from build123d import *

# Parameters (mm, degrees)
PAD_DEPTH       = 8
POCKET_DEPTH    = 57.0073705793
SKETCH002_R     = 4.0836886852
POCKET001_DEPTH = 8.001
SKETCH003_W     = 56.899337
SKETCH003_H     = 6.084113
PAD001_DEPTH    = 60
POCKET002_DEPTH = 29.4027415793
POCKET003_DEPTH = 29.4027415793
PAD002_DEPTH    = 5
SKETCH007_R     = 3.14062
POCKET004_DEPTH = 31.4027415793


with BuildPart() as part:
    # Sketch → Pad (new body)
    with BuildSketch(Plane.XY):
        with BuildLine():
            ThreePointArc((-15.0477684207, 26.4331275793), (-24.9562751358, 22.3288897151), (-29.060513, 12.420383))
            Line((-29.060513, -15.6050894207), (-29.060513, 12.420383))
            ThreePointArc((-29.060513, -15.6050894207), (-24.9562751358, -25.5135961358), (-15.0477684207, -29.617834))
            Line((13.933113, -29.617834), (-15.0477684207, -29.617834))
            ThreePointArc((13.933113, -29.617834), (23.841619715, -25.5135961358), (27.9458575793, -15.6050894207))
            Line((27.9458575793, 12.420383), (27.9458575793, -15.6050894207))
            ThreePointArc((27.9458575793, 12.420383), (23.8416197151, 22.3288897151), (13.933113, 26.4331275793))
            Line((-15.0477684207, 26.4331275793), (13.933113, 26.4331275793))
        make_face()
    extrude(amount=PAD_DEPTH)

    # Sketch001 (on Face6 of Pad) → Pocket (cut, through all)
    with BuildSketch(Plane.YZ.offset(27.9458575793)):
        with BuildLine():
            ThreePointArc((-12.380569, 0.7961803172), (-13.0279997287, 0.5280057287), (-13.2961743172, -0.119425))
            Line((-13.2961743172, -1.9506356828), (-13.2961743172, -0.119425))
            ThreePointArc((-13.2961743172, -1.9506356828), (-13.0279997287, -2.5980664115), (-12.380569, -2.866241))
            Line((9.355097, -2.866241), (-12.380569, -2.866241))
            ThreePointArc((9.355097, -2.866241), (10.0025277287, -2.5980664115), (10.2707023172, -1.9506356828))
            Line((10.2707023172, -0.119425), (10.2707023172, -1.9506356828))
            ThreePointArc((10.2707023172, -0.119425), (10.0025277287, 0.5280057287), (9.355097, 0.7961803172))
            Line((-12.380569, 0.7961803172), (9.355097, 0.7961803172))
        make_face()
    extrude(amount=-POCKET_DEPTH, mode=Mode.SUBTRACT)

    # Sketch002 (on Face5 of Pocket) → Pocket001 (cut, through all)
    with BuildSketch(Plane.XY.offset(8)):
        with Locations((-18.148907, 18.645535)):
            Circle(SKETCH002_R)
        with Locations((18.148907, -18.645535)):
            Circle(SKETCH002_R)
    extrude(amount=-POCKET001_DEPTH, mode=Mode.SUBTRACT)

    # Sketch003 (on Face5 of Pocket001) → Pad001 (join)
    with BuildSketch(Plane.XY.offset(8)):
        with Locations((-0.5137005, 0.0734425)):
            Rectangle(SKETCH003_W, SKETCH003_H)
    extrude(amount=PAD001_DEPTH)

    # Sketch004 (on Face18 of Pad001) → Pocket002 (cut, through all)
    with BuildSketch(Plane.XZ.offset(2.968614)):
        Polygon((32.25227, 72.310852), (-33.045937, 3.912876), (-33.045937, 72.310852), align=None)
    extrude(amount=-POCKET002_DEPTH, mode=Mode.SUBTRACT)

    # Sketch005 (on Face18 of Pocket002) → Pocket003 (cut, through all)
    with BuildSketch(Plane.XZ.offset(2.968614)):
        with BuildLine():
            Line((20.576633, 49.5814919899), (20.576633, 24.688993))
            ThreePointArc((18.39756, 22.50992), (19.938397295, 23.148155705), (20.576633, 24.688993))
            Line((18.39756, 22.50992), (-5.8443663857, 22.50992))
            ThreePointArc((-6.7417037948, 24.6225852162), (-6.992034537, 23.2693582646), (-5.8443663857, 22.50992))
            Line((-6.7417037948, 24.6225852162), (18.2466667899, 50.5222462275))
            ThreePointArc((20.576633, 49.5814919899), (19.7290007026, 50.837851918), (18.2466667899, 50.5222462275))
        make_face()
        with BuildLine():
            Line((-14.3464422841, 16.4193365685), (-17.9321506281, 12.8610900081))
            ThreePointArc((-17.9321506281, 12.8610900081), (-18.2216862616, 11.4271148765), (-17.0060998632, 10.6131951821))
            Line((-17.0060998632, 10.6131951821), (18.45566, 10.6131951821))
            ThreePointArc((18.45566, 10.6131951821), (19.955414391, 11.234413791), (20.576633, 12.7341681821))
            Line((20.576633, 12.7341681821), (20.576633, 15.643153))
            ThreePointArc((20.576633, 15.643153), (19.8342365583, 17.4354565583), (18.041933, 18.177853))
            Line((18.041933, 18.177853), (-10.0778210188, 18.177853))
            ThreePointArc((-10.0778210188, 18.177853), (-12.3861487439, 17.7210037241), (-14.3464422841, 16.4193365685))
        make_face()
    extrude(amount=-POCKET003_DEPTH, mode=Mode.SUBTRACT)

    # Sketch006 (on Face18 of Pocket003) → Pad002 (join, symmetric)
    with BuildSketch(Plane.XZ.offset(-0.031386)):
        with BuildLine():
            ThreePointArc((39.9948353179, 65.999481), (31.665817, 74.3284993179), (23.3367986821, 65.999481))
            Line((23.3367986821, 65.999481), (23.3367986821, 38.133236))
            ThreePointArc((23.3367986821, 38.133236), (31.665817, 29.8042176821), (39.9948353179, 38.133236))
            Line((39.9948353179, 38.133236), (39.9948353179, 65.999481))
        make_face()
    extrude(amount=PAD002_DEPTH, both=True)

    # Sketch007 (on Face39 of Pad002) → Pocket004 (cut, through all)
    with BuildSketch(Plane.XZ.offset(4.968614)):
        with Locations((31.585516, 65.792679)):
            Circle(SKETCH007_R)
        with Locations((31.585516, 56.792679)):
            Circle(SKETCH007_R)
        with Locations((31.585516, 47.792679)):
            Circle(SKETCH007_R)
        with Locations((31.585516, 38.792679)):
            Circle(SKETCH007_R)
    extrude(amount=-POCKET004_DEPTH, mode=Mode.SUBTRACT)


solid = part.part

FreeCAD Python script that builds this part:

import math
import FreeCAD as App
import Part
import Sketcher

V = App.Vector

doc = App.newDocument("Part")
params = doc.addObject("Spreadsheet::Sheet", "Params")
for row, (alias, value) in enumerate([
    ("pad1_length", "8 mm"),
    ("pad2_length", "60 mm"),
    ("pad3_length", "10 mm"),
], start=1):
    params.set(f"A{row}", alias)
    params.set(f"B{row}", "=" + value)
    params.setAlias(f"B{row}", alias)

body = doc.addObject("PartDesign::Body", "Body")

# Sketch on XY plane
sketch1 = doc.addObject("Sketcher::SketchObject", "Sketch")
body.addObject(sketch1)
sketch1.AttachmentSupport = (doc.XY_Plane, [""])
sketch1.MapMode = "FlatFace"
sketch1.addGeometry(Part.ArcOfCircle(Part.Circle(V(-15.047768, 12.420383, 0), V(0, 0, 1), 14.012745), math.radians(90), math.radians(180)), False)
sketch1.addGeometry(Part.LineSegment(V(-29.060513, 12.420383, 0), V(-29.060513, -15.605089, 0)), False)
sketch1.addGeometry(Part.ArcOfCircle(Part.Circle(V(-15.047768, -15.605089, 0), V(0, 0, 1), 14.012745), math.radians(180), math.radians(270)), False)
sketch1.addGeometry(Part.LineSegment(V(-15.047768, -29.617834, 0), V(13.933113, -29.617834, 0)), False)
sketch1.addGeometry(Part.ArcOfCircle(Part.Circle(V(13.933113, -15.605089, 0), V(0, 0, 1), 14.012745), math.radians(-90), math.radians(0)), False)
sketch1.addGeometry(Part.LineSegment(V(27.945858, -15.605089, 0), V(27.945858, 12.420383, 0)), False)
sketch1.addGeometry(Part.ArcOfCircle(Part.Circle(V(13.933113, 12.420383, 0), V(0, 0, 1), 14.012745), math.radians(0), math.radians(90)), False)
sketch1.addGeometry(Part.LineSegment(V(13.933113, 26.433128, 0), V(-15.047768, 26.433128, 0)), False)
sketch1.addConstraint(Sketcher.Constraint("Tangent", 0, 2, 1, 1))
sketch1.addConstraint(Sketcher.Constraint("Tangent", 1, 2, 2, 1))
sketch1.addConstraint(Sketcher.Constraint("Tangent", 2, 2, 3, 1))
sketch1.addConstraint(Sketcher.Constraint("Tangent", 3, 2, 4, 1))
sketch1.addConstraint(Sketcher.Constraint("Tangent", 4, 2, 5, 1))
sketch1.addConstraint(Sketcher.Constraint("Tangent", 5, 2, 6, 1))
sketch1.addConstraint(Sketcher.Constraint("Tangent", 6, 2, 7, 1))
sketch1.addConstraint(Sketcher.Constraint("Tangent", 7, 2, 0, 1))
sketch1.addConstraint(Sketcher.Constraint("Vertical", 1))
sketch1.addConstraint(Sketcher.Constraint("Horizontal", 3))
sketch1.addConstraint(Sketcher.Constraint("Vertical", 5))
sketch1.addConstraint(Sketcher.Constraint("Horizontal", 7))
sketch1.addConstraint(Sketcher.Constraint("Equal", 0, 2))
sketch1.addConstraint(Sketcher.Constraint("Equal", 2, 4))
sketch1.addConstraint(Sketcher.Constraint("Equal", 4, 6))
sketch1.addConstraint(Sketcher.Constraint("Radius", 0, 14.012745))
sketch1.addConstraint(Sketcher.Constraint("DistanceX", 3, 1, 3, 2, 28.980881))
sketch1.addConstraint(Sketcher.Constraint("DistanceY", 1, 2, 1, 1, 28.025472))
sketch1.addConstraint(Sketcher.Constraint("DistanceX", 0, 3, -1, 1, 15.047768))
sketch1.addConstraint(Sketcher.Constraint("DistanceY", 2, 3, -1, 1, 15.605089))
pad1 = doc.addObject("PartDesign::Pad", "Pad")
body.addObject(pad1)
pad1.Profile = sketch1
pad1.setExpression("Length", "Params.pad1_length")

# Sketch on YZ plane
sketch2 = doc.addObject("Sketcher::SketchObject", "Sketch001")
body.addObject(sketch2)
sketch2.AttachmentSupport = (doc.YZ_Plane, [""])
sketch2.MapMode = "FlatFace"
sketch2.AttachmentOffset = App.Placement(V(0, 0, 27.945858), App.Rotation())
sketch2.addGeometry(Part.ArcOfCircle(Part.Circle(V(-12.380569, -0.119425, 0), V(0, 0, 1), 0.915605), math.radians(90), math.radians(180)), False)
sketch2.addGeometry(Part.LineSegment(V(-13.296174, -0.119425, 0), V(-13.296174, -1.950636, 0)), False)
sketch2.addGeometry(Part.ArcOfCircle(Part.Circle(V(-12.380569, -1.950636, 0), V(0, 0, 1), 0.915605), math.radians(180), math.radians(270)), False)
sketch2.addGeometry(Part.LineSegment(V(-12.380569, -2.866241, 0), V(9.355097, -2.866241, 0)), False)
sketch2.addGeometry(Part.ArcOfCircle(Part.Circle(V(9.355097, -1.950636, 0), V(0, 0, 1), 0.915605), math.radians(-90), math.radians(0)), False)
sketch2.addGeometry(Part.LineSegment(V(10.270702, -1.950636, 0), V(10.270702, -0.119425, 0)), False)
sketch2.addGeometry(Part.ArcOfCircle(Part.Circle(V(9.355097, -0.119425, 0), V(0, 0, 1), 0.915605), math.radians(0), math.radians(90)), False)
sketch2.addGeometry(Part.LineSegment(V(9.355097, 0.79618, 0), V(-12.380569, 0.79618, 0)), False)
sketch2.addConstraint(Sketcher.Constraint("Tangent", 0, 2, 1, 1))
sketch2.addConstraint(Sketcher.Constraint("Tangent", 1, 2, 2, 1))
sketch2.addConstraint(Sketcher.Constraint("Tangent", 2, 2, 3, 1))
sketch2.addConstraint(Sketcher.Constraint("Tangent", 3, 2, 4, 1))
sketch2.addConstraint(Sketcher.Constraint("Tangent", 4, 2, 5, 1))
sketch2.addConstraint(Sketcher.Constraint("Tangent", 5, 2, 6, 1))
sketch2.addConstraint(Sketcher.Constraint("Tangent", 6, 2, 7, 1))
sketch2.addConstraint(Sketcher.Constraint("Tangent", 7, 2, 0, 1))
sketch2.addConstraint(Sketcher.Constraint("Vertical", 1))
sketch2.addConstraint(Sketcher.Constraint("Horizontal", 3))
sketch2.addConstraint(Sketcher.Constraint("Vertical", 5))
sketch2.addConstraint(Sketcher.Constraint("Horizontal", 7))
sketch2.addConstraint(Sketcher.Constraint("Equal", 0, 2))
sketch2.addConstraint(Sketcher.Constraint("Equal", 2, 4))
sketch2.addConstraint(Sketcher.Constraint("Equal", 4, 6))
sketch2.addConstraint(Sketcher.Constraint("Radius", 0, 0.915605))
sketch2.addConstraint(Sketcher.Constraint("DistanceY", 1, 2, 1, 1, 1.831211))
sketch2.addConstraint(Sketcher.Constraint("DistanceX", 3, 1, 3, 2, 21.735666))
sketch2.addConstraint(Sketcher.Constraint("DistanceX", 0, 3, -1, 1, 12.380569))
sketch2.addConstraint(Sketcher.Constraint("DistanceY", 2, 2, -1, 1, 2.866241))
pocket1 = doc.addObject("PartDesign::Pocket", "Pocket")
body.addObject(pocket1)
pocket1.Profile = sketch2
pocket1.Type = "ThroughAll"

# Sketch on XY plane
sketch3 = doc.addObject("Sketcher::SketchObject", "Sketch002")
body.addObject(sketch3)
sketch3.AttachmentSupport = (doc.XY_Plane, [""])
sketch3.MapMode = "FlatFace"
sketch3.AttachmentOffset = App.Placement(V(0, 0, 8), App.Rotation())
sketch3.addGeometry(Part.Circle(V(-18.148907, 18.645535, 0), V(0, 0, 1), 4.083689), False)
sketch3.addGeometry(Part.Circle(V(18.148907, -18.645535, 0), V(0, 0, 1), 4.083689), False)
sketch3.addConstraint(Sketcher.Constraint("Equal", 0, 1))
sketch3.addConstraint(Sketcher.Constraint("Symmetric", 0, 3, 1, 3, -1, 1))
sketch3.addConstraint(Sketcher.Constraint("Diameter", 0, 8.167377))
sketch3.addConstraint(Sketcher.Constraint("DistanceY", 1, 3, 0, 3, 37.29107))
sketch3.addConstraint(Sketcher.Constraint("DistanceX", 0, 3, -1, 1, 18.148907))
pocket2 = doc.addObject("PartDesign::Pocket", "Pocket001")
body.addObject(pocket2)
pocket2.Profile = sketch3
pocket2.Type = "ThroughAll"

# Sketch on XY plane
sketch4 = doc.addObject("Sketcher::SketchObject", "Sketch003")
body.addObject(sketch4)
sketch4.AttachmentSupport = (doc.XY_Plane, [""])
sketch4.MapMode = "FlatFace"
sketch4.AttachmentOffset = App.Placement(V(0, 0, 8), App.Rotation())
sketch4.addGeometry(Part.LineSegment(V(-28.963369, 3.115499, 0), V(-28.963369, -2.968614, 0)), False)
sketch4.addGeometry(Part.LineSegment(V(-28.963369, -2.968614, 0), V(27.935968, -2.968614, 0)), False)
sketch4.addGeometry(Part.LineSegment(V(27.935968, -2.968614, 0), V(27.935968, 3.115499, 0)), False)
sketch4.addGeometry(Part.LineSegment(V(27.935968, 3.115499, 0), V(-28.963369, 3.115499, 0)), False)
sketch4.addConstraint(Sketcher.Constraint("Coincident", 0, 2, 1, 1))
sketch4.addConstraint(Sketcher.Constraint("Coincident", 1, 2, 2, 1))
sketch4.addConstraint(Sketcher.Constraint("Coincident", 2, 2, 3, 1))
sketch4.addConstraint(Sketcher.Constraint("Coincident", 3, 2, 0, 1))
sketch4.addConstraint(Sketcher.Constraint("Vertical", 0))
sketch4.addConstraint(Sketcher.Constraint("Horizontal", 1))
sketch4.addConstraint(Sketcher.Constraint("Vertical", 2))
sketch4.addConstraint(Sketcher.Constraint("Horizontal", 3))
sketch4.addConstraint(Sketcher.Constraint("DistanceY", -1, 1, 2, 2, 3.115499))
sketch4.addConstraint(Sketcher.Constraint("DistanceX", 1, 1, 1, 2, 56.899337))
sketch4.addConstraint(Sketcher.Constraint("DistanceY", 0, 2, 0, 1, 6.084113))
sketch4.addConstraint(Sketcher.Constraint("DistanceX", 0, 2, -1, 1, 28.963369))
pad2 = doc.addObject("PartDesign::Pad", "Pad001")
body.addObject(pad2)
pad2.Profile = sketch4
pad2.setExpression("Length", "Params.pad2_length")

# Sketch on XZ plane
sketch5 = doc.addObject("Sketcher::SketchObject", "Sketch004")
body.addObject(sketch5)
sketch5.AttachmentSupport = (doc.XZ_Plane, [""])
sketch5.MapMode = "FlatFace"
sketch5.AttachmentOffset = App.Placement(V(0, 0, 2.968614), App.Rotation())
sketch5.addGeometry(Part.LineSegment(V(-33.045937, 3.912876, 0), V(32.25227, 72.310852, 0)), False)
sketch5.addGeometry(Part.LineSegment(V(32.25227, 72.310852, 0), V(-33.045937, 72.310852, 0)), False)
sketch5.addGeometry(Part.LineSegment(V(-33.045937, 72.310852, 0), V(-33.045937, 3.912876, 0)), False)
sketch5.addConstraint(Sketcher.Constraint("Coincident", 0, 2, 1, 1))
sketch5.addConstraint(Sketcher.Constraint("Coincident", 1, 2, 2, 1))
sketch5.addConstraint(Sketcher.Constraint("Coincident", 2, 2, 0, 1))
sketch5.addConstraint(Sketcher.Constraint("Horizontal", 1))
sketch5.addConstraint(Sketcher.Constraint("Vertical", 2))
sketch5.addConstraint(Sketcher.Constraint("DistanceX", 1, 2, 1, 1, 65.298207))
sketch5.addConstraint(Sketcher.Constraint("DistanceY", 2, 2, 2, 1, 68.397976))
sketch5.addConstraint(Sketcher.Constraint("DistanceX", -1, 1, 0, 2, 32.25227))
sketch5.addConstraint(Sketcher.Constraint("DistanceY", -1, 1, 0, 2, 72.310852))
pocket3 = doc.addObject("PartDesign::Pocket", "Pocket002")
body.addObject(pocket3)
pocket3.Profile = sketch5
pocket3.Type = "ThroughAll"

# Sketch on XZ plane
sketch6 = doc.addObject("Sketcher::SketchObject", "Sketch005")
body.addObject(sketch6)
sketch6.AttachmentSupport = (doc.XZ_Plane, [""])
sketch6.MapMode = "FlatFace"
sketch6.AttachmentOffset = App.Placement(V(0, 0, 2.968614), App.Rotation())
sketch6.addGeometry(Part.LineSegment(V(20.576633, 24.688993, 0), V(20.576633, 49.581492, 0)), False)
sketch6.addGeometry(Part.ArcOfCircle(Part.Circle(V(19.221729, 49.581492, 0), V(0, 0, 1), 1.354904), math.radians(0), math.radians(136.025929)), False)
sketch6.addGeometry(Part.LineSegment(V(18.246667, 50.522246, 0), V(-6.741704, 24.622585, 0)), False)
sketch6.addGeometry(Part.ArcOfCircle(Part.Circle(V(-5.844366, 23.756821, 0), V(0, 0, 1), 1.246901), math.radians(136.025929), math.radians(270)), False)
sketch6.addGeometry(Part.LineSegment(V(-5.844366, 22.50992, 0), V(18.39756, 22.50992, 0)), False)
sketch6.addGeometry(Part.ArcOfCircle(Part.Circle(V(18.39756, 24.688993, 0), V(0, 0, 1), 2.179073), math.radians(-90), math.radians(0)), False)
sketch6.addGeometry(Part.LineSegment(V(-14.346442, 16.419337, 0), V(-17.932151, 12.86109, 0)), False)
sketch6.addGeometry(Part.ArcOfCircle(Part.Circle(V(-17.0061, 11.927892, 0), V(0, 0, 1), 1.314697), math.radians(134.779753), math.radians(270)), False)
sketch6.addGeometry(Part.LineSegment(V(-17.0061, 10.613195, 0), V(18.45566, 10.613195, 0)), False)
sketch6.addGeometry(Part.ArcOfCircle(Part.Circle(V(18.45566, 12.734168, 0), V(0, 0, 1), 2.120973), math.radians(-90), math.radians(0)), False)
sketch6.addGeometry(Part.LineSegment(V(20.576633, 12.734168, 0), V(20.576633, 15.643153, 0)), False)
sketch6.addGeometry(Part.ArcOfCircle(Part.Circle(V(18.041933, 15.643153, 0), V(0, 0, 1), 2.5347), math.radians(0), math.radians(90)), False)
sketch6.addGeometry(Part.LineSegment(V(18.041933, 18.177853, 0), V(-10.077821, 18.177853, 0)), False)
sketch6.addGeometry(Part.ArcOfCircle(Part.Circle(V(-10.077821, 12.117771, 0), V(0, 0, 1), 6.060082), math.radians(90), math.radians(134.779753)), False)
sketch6.addConstraint(Sketcher.Constraint("Tangent", 0, 2, 1, 1))
sketch6.addConstraint(Sketcher.Constraint("Tangent", 1, 2, 2, 1))
sketch6.addConstraint(Sketcher.Constraint("Tangent", 2, 2, 3, 1))
sketch6.addConstraint(Sketcher.Constraint("Tangent", 3, 2, 4, 1))
sketch6.addConstraint(Sketcher.Constraint("Tangent", 4, 2, 5, 1))
sketch6.addConstraint(Sketcher.Constraint("Tangent", 5, 2, 0, 1))
sketch6.addConstraint(Sketcher.Constraint("Tangent", 6, 2, 7, 1))
sketch6.addConstraint(Sketcher.Constraint("Tangent", 7, 2, 8, 1))
sketch6.addConstraint(Sketcher.Constraint("Tangent", 8, 2, 9, 1))
sketch6.addConstraint(Sketcher.Constraint("Tangent", 9, 2, 10, 1))
sketch6.addConstraint(Sketcher.Constraint("Tangent", 10, 2, 11, 1))
sketch6.addConstraint(Sketcher.Constraint("Tangent", 11, 2, 12, 1))
sketch6.addConstraint(Sketcher.Constraint("Tangent", 12, 2, 13, 1))
sketch6.addConstraint(Sketcher.Constraint("Tangent", 13, 2, 6, 1))
sketch6.addConstraint(Sketcher.Constraint("Vertical", 0))
sketch6.addConstraint(Sketcher.Constraint("Horizontal", 4))
sketch6.addConstraint(Sketcher.Constraint("Horizontal", 8))
sketch6.addConstraint(Sketcher.Constraint("Vertical", 10))
sketch6.addConstraint(Sketcher.Constraint("Horizontal", 12))
sketch6.addConstraint(Sketcher.Constraint("Vertical", 5, 2, 9, 2))
sketch6.addConstraint(Sketcher.Constraint("Radius", 3, 1.246901))
sketch6.addConstraint(Sketcher.Constraint("Radius", 11, 2.5347))
sketch6.addConstraint(Sketcher.Constraint("DistanceY", 0, 1, 0, 2, 24.892499))
sketch6.addConstraint(Sketcher.Constraint("Radius", 1, 1.354904))
sketch6.addConstraint(Sketcher.Constraint("Radius", 5, 2.179073))
sketch6.addConstraint(Sketcher.Constraint("Radius", 7, 1.314697))
sketch6.addConstraint(Sketcher.Constraint("Radius", 9, 2.120973))
sketch6.addConstraint(Sketcher.Constraint("Radius", 13, 6.060082))
sketch6.addConstraint(Sketcher.Constraint("DistanceX", 3, 3, 0, 2, 26.420999))
sketch6.addConstraint(Sketcher.Constraint("DistanceX", 8, 1, 8, 2, 35.46176))
sketch6.addConstraint(Sketcher.Constraint("DistanceX", 7, 3, -1, 1, 17.0061))
sketch6.addConstraint(Sketcher.Constraint("DistanceY", 7, 3, 5, 3, 12.761101))
sketch6.addConstraint(Sketcher.Constraint("DistanceX", 12, 2, 12, 1, 28.119754))
sketch6.addConstraint(Sketcher.Constraint("DistanceY", 10, 1, 10, 2, 2.908985))
sketch6.addConstraint(Sketcher.Constraint("DistanceY", -1, 1, 1, 3, 49.581492))
pocket4 = doc.addObject("PartDesign::Pocket", "Pocket003")
body.addObject(pocket4)
pocket4.Profile = sketch6
pocket4.Type = "ThroughAll"

# Sketch on XZ plane
sketch7 = doc.addObject("Sketcher::SketchObject", "Sketch006")
body.addObject(sketch7)
sketch7.AttachmentSupport = (doc.XZ_Plane, [""])
sketch7.MapMode = "FlatFace"
sketch7.AttachmentOffset = App.Placement(V(0, 0, -0.031386), App.Rotation())
sketch7.addGeometry(Part.ArcOfCircle(Part.Circle(V(31.665817, 65.999481, 0), V(0, 0, 1), 8.329018), math.radians(0), math.radians(180)), False)
sketch7.addGeometry(Part.LineSegment(V(23.336799, 65.999481, 0), V(23.336799, 38.133236, 0)), False)
sketch7.addGeometry(Part.ArcOfCircle(Part.Circle(V(31.665817, 38.133236, 0), V(0, 0, 1), 8.329018), math.radians(180), math.radians(360)), False)
sketch7.addGeometry(Part.LineSegment(V(39.994835, 38.133236, 0), V(39.994835, 65.999481, 0)), False)
sketch7.addConstraint(Sketcher.Constraint("Tangent", 0, 2, 1, 1))
sketch7.addConstraint(Sketcher.Constraint("Tangent", 1, 2, 2, 1))
sketch7.addConstraint(Sketcher.Constraint("Tangent", 2, 2, 3, 1))
sketch7.addConstraint(Sketcher.Constraint("Tangent", 3, 2, 0, 1))
sketch7.addConstraint(Sketcher.Constraint("Vertical", 1))
sketch7.addConstraint(Sketcher.Constraint("Vertical", 3))
sketch7.addConstraint(Sketcher.Constraint("Radius", 0, 8.329018))
sketch7.addConstraint(Sketcher.Constraint("DistanceX", -1, 1, 0, 2, 23.336799))
sketch7.addConstraint(Sketcher.Constraint("DistanceY", 1, 2, 1, 1, 27.866245))
sketch7.addConstraint(Sketcher.Constraint("DistanceY", -1, 1, 0, 3, 65.999481))
pad3 = doc.addObject("PartDesign::Pad", "Pad002")
body.addObject(pad3)
pad3.Profile = sketch7
pad3.setExpression("Length", "Params.pad3_length")
pad3.Midplane = True

# Sketch on XZ plane
sketch8 = doc.addObject("Sketcher::SketchObject", "Sketch007")
body.addObject(sketch8)
sketch8.AttachmentSupport = (doc.XZ_Plane, [""])
sketch8.MapMode = "FlatFace"
sketch8.AttachmentOffset = App.Placement(V(0, 0, 4.968614), App.Rotation())
sketch8.addGeometry(Part.Circle(V(31.585516, 65.792679, 0), V(0, 0, 1), 3.14062), False)
sketch8.addGeometry(Part.Circle(V(31.585516, 56.792679, 0), V(0, 0, 1), 3.14062), False)
sketch8.addGeometry(Part.Circle(V(31.585516, 47.792679, 0), V(0, 0, 1), 3.14062), False)
sketch8.addGeometry(Part.Circle(V(31.585516, 38.792679, 0), V(0, 0, 1), 3.14062), False)
sketch8.addConstraint(Sketcher.Constraint("Equal", 0, 1))
sketch8.addConstraint(Sketcher.Constraint("Equal", 1, 2))
sketch8.addConstraint(Sketcher.Constraint("Equal", 2, 3))
sketch8.addConstraint(Sketcher.Constraint("Vertical", 0, 3, 1, 3))
sketch8.addConstraint(Sketcher.Constraint("Vertical", 1, 3, 2, 3))
sketch8.addConstraint(Sketcher.Constraint("Vertical", 2, 3, 3, 3))
sketch8.addConstraint(Sketcher.Constraint("DistanceY", 1, 3, 0, 3, 9.0))
sketch8.addConstraint(Sketcher.Constraint("DistanceY", 2, 3, 1, 3, 9.0))
sketch8.addConstraint(Sketcher.Constraint("DistanceY", 3, 3, 2, 3, 9.0))
sketch8.addConstraint(Sketcher.Constraint("Diameter", 0, 6.28124))
sketch8.addConstraint(Sketcher.Constraint("DistanceY", -1, 1, 0, 3, 65.792679))
sketch8.addConstraint(Sketcher.Constraint("DistanceX", -1, 1, 0, 3, 31.585516))
pocket5 = doc.addObject("PartDesign::Pocket", "Pocket004")
body.addObject(pocket5)
pocket5.Profile = sketch8
pocket5.Type = "ThroughAll"

doc.recompute()
